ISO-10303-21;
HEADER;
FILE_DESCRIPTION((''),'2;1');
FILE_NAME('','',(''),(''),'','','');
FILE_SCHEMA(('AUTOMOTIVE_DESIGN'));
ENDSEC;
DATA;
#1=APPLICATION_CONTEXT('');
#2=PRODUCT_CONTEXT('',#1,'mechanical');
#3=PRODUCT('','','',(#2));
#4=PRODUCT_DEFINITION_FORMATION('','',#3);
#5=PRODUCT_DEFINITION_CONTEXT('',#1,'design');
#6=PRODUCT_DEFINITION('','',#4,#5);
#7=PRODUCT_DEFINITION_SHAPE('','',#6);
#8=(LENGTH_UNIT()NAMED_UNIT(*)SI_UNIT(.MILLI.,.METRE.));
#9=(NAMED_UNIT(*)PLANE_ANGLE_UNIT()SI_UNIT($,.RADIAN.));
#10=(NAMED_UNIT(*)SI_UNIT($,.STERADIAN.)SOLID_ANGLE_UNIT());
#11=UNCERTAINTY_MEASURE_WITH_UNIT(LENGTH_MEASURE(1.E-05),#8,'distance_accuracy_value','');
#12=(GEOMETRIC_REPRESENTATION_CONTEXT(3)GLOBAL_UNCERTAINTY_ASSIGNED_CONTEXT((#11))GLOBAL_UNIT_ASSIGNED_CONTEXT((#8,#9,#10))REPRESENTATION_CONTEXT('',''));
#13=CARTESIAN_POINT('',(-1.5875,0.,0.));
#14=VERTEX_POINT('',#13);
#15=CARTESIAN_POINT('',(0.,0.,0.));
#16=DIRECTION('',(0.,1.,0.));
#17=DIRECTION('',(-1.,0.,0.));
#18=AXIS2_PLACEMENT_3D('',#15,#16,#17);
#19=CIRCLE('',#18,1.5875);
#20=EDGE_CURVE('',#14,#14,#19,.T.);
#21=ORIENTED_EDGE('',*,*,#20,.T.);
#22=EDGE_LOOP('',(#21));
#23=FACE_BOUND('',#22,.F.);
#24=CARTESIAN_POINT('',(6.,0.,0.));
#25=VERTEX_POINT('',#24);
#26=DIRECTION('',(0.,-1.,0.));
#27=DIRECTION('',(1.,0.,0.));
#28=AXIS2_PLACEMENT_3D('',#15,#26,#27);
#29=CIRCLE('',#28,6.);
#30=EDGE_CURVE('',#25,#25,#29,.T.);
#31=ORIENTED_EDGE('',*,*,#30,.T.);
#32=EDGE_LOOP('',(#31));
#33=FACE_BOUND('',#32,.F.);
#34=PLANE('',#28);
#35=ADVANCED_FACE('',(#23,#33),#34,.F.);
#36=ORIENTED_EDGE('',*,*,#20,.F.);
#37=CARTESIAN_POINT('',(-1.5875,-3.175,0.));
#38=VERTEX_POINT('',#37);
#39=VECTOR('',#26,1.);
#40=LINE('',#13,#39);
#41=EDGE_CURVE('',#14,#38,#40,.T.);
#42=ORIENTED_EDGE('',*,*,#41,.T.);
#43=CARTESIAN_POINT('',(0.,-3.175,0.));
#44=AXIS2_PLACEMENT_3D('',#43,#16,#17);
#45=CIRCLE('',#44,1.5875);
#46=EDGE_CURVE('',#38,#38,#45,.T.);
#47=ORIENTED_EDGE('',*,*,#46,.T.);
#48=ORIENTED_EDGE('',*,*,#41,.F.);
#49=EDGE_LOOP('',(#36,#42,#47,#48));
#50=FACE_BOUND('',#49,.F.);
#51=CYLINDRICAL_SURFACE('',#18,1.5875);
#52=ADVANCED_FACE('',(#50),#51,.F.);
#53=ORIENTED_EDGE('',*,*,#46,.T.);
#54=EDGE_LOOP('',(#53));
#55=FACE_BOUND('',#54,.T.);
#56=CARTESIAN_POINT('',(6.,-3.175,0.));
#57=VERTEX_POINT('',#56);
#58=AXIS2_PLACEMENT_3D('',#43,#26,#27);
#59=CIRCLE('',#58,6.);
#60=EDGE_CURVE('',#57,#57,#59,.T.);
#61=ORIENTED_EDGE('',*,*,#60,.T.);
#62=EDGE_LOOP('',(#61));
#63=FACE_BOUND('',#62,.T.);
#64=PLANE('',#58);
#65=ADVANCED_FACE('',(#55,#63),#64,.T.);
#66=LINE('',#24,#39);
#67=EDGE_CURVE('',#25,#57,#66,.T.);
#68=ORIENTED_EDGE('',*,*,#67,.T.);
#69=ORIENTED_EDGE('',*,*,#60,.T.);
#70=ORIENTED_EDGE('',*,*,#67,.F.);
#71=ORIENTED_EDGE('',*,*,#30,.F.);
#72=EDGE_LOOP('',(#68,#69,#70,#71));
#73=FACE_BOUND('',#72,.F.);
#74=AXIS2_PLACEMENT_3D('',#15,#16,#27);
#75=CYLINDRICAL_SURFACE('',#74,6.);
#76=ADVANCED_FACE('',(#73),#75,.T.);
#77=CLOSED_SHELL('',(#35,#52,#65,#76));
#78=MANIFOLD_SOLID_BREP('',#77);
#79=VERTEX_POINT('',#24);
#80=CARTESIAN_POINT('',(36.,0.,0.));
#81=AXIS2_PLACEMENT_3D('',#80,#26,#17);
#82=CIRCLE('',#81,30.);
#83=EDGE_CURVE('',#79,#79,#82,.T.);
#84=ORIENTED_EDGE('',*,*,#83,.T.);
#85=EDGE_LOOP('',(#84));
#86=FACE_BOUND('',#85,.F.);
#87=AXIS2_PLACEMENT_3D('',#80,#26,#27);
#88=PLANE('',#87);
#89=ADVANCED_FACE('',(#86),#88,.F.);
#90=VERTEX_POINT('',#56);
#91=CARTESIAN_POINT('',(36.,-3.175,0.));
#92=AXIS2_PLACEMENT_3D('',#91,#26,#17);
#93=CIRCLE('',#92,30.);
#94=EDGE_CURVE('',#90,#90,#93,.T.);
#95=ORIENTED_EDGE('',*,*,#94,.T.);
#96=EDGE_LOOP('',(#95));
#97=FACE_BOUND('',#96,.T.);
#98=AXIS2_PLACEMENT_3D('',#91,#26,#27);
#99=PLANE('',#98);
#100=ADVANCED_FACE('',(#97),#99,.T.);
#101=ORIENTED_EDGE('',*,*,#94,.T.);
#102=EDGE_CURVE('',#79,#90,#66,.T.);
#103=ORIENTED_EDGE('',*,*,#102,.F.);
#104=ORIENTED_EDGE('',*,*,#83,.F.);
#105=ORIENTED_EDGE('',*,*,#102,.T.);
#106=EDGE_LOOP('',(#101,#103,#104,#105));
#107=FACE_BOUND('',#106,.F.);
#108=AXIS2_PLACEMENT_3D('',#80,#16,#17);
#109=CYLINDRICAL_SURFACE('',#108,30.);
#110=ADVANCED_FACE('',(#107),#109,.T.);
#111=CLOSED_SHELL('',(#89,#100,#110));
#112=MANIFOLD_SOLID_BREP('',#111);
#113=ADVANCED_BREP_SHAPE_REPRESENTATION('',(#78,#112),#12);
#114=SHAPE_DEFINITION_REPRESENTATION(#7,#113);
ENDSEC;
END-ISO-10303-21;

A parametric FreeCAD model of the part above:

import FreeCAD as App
import Part
import Sketcher
Q = App.Units.Quantity

doc = App.newDocument("Part")
params = doc.addObject("Spreadsheet::Sheet", "Params")
for row, (alias, value) in enumerate([
    ("sketch1_diameter", "60 mm"),
    ("sketch1_diameter2", "12 mm"),
    ("pad1_length", "3.175 mm"),
    ("pocket1_length", "25.4 mm"),
], start=1):
    params.set(f"A{row}", alias)
    params.set(f"B{row}", "=" + value)
    params.setAlias(f"B{row}", alias)

body = doc.addObject("PartDesign::Body", "Body")
body.AllowCompound = True

sketch1 = body.newObject("Sketcher::SketchObject", "Sketch")
sketch1.AttachmentSupport = (doc.getObject("XZ_Plane"), [""])
sketch1.MapMode = "FlatFace"
sketch1.addGeometry(Part.Circle(App.Vector(36, 0, 0), App.Vector(0, 0, 1), 30), False)
sketch1.addGeometry(Part.Circle(App.Vector(0, 0, 0), App.Vector(0, 0, 1), 6), False)
sketch1.addConstraint(Sketcher.Constraint("Coincident", 1, 3, -1, 1))
sketch1.addConstraint(Sketcher.Constraint("PointOnObject", 0, 3, -1))
sketch1.addConstraint(Sketcher.Constraint("Diameter", 0, Q("60 mm")))
sketch1.addConstraint(Sketcher.Constraint("Diameter", 1, Q("12 mm")))
sketch1.addConstraint(Sketcher.Constraint("DistanceX", -1, 1, 0, 3, Q("36 mm")))
sketch1.setExpression("Constraints[2]", "Params.sketch1_diameter")
sketch1.setExpression("Constraints[3]", "Params.sketch1_diameter2")
pad1 = body.newObject("PartDesign::Pad", "Pad")
pad1.Profile = sketch1
pad1.setExpression("Length", "Params.pad1_length")

sketch2 = body.newObject("Sketcher::SketchObject", "Sketch001")
sketch2.AttachmentSupport = (doc.getObject("XZ_Plane"), [""])
sketch2.MapMode = "FlatFace"
sketch2.addGeometry(Part.Circle(App.Vector(0, 0, 0), App.Vector(0, 0, 1), 1.5875), False)
sketch2.addConstraint(Sketcher.Constraint("Coincident", 0, 3, -1, 1))
sketch2.addConstraint(Sketcher.Constraint("Diameter", 0, Q("3.175 mm")))
pocket1 = body.newObject("PartDesign::Pocket", "Pocket")
pocket1.Profile = sketch2
pocket1.setExpression("Length", "Params.pocket1_length")
pocket1.Reversed = True

doc.recompute()
